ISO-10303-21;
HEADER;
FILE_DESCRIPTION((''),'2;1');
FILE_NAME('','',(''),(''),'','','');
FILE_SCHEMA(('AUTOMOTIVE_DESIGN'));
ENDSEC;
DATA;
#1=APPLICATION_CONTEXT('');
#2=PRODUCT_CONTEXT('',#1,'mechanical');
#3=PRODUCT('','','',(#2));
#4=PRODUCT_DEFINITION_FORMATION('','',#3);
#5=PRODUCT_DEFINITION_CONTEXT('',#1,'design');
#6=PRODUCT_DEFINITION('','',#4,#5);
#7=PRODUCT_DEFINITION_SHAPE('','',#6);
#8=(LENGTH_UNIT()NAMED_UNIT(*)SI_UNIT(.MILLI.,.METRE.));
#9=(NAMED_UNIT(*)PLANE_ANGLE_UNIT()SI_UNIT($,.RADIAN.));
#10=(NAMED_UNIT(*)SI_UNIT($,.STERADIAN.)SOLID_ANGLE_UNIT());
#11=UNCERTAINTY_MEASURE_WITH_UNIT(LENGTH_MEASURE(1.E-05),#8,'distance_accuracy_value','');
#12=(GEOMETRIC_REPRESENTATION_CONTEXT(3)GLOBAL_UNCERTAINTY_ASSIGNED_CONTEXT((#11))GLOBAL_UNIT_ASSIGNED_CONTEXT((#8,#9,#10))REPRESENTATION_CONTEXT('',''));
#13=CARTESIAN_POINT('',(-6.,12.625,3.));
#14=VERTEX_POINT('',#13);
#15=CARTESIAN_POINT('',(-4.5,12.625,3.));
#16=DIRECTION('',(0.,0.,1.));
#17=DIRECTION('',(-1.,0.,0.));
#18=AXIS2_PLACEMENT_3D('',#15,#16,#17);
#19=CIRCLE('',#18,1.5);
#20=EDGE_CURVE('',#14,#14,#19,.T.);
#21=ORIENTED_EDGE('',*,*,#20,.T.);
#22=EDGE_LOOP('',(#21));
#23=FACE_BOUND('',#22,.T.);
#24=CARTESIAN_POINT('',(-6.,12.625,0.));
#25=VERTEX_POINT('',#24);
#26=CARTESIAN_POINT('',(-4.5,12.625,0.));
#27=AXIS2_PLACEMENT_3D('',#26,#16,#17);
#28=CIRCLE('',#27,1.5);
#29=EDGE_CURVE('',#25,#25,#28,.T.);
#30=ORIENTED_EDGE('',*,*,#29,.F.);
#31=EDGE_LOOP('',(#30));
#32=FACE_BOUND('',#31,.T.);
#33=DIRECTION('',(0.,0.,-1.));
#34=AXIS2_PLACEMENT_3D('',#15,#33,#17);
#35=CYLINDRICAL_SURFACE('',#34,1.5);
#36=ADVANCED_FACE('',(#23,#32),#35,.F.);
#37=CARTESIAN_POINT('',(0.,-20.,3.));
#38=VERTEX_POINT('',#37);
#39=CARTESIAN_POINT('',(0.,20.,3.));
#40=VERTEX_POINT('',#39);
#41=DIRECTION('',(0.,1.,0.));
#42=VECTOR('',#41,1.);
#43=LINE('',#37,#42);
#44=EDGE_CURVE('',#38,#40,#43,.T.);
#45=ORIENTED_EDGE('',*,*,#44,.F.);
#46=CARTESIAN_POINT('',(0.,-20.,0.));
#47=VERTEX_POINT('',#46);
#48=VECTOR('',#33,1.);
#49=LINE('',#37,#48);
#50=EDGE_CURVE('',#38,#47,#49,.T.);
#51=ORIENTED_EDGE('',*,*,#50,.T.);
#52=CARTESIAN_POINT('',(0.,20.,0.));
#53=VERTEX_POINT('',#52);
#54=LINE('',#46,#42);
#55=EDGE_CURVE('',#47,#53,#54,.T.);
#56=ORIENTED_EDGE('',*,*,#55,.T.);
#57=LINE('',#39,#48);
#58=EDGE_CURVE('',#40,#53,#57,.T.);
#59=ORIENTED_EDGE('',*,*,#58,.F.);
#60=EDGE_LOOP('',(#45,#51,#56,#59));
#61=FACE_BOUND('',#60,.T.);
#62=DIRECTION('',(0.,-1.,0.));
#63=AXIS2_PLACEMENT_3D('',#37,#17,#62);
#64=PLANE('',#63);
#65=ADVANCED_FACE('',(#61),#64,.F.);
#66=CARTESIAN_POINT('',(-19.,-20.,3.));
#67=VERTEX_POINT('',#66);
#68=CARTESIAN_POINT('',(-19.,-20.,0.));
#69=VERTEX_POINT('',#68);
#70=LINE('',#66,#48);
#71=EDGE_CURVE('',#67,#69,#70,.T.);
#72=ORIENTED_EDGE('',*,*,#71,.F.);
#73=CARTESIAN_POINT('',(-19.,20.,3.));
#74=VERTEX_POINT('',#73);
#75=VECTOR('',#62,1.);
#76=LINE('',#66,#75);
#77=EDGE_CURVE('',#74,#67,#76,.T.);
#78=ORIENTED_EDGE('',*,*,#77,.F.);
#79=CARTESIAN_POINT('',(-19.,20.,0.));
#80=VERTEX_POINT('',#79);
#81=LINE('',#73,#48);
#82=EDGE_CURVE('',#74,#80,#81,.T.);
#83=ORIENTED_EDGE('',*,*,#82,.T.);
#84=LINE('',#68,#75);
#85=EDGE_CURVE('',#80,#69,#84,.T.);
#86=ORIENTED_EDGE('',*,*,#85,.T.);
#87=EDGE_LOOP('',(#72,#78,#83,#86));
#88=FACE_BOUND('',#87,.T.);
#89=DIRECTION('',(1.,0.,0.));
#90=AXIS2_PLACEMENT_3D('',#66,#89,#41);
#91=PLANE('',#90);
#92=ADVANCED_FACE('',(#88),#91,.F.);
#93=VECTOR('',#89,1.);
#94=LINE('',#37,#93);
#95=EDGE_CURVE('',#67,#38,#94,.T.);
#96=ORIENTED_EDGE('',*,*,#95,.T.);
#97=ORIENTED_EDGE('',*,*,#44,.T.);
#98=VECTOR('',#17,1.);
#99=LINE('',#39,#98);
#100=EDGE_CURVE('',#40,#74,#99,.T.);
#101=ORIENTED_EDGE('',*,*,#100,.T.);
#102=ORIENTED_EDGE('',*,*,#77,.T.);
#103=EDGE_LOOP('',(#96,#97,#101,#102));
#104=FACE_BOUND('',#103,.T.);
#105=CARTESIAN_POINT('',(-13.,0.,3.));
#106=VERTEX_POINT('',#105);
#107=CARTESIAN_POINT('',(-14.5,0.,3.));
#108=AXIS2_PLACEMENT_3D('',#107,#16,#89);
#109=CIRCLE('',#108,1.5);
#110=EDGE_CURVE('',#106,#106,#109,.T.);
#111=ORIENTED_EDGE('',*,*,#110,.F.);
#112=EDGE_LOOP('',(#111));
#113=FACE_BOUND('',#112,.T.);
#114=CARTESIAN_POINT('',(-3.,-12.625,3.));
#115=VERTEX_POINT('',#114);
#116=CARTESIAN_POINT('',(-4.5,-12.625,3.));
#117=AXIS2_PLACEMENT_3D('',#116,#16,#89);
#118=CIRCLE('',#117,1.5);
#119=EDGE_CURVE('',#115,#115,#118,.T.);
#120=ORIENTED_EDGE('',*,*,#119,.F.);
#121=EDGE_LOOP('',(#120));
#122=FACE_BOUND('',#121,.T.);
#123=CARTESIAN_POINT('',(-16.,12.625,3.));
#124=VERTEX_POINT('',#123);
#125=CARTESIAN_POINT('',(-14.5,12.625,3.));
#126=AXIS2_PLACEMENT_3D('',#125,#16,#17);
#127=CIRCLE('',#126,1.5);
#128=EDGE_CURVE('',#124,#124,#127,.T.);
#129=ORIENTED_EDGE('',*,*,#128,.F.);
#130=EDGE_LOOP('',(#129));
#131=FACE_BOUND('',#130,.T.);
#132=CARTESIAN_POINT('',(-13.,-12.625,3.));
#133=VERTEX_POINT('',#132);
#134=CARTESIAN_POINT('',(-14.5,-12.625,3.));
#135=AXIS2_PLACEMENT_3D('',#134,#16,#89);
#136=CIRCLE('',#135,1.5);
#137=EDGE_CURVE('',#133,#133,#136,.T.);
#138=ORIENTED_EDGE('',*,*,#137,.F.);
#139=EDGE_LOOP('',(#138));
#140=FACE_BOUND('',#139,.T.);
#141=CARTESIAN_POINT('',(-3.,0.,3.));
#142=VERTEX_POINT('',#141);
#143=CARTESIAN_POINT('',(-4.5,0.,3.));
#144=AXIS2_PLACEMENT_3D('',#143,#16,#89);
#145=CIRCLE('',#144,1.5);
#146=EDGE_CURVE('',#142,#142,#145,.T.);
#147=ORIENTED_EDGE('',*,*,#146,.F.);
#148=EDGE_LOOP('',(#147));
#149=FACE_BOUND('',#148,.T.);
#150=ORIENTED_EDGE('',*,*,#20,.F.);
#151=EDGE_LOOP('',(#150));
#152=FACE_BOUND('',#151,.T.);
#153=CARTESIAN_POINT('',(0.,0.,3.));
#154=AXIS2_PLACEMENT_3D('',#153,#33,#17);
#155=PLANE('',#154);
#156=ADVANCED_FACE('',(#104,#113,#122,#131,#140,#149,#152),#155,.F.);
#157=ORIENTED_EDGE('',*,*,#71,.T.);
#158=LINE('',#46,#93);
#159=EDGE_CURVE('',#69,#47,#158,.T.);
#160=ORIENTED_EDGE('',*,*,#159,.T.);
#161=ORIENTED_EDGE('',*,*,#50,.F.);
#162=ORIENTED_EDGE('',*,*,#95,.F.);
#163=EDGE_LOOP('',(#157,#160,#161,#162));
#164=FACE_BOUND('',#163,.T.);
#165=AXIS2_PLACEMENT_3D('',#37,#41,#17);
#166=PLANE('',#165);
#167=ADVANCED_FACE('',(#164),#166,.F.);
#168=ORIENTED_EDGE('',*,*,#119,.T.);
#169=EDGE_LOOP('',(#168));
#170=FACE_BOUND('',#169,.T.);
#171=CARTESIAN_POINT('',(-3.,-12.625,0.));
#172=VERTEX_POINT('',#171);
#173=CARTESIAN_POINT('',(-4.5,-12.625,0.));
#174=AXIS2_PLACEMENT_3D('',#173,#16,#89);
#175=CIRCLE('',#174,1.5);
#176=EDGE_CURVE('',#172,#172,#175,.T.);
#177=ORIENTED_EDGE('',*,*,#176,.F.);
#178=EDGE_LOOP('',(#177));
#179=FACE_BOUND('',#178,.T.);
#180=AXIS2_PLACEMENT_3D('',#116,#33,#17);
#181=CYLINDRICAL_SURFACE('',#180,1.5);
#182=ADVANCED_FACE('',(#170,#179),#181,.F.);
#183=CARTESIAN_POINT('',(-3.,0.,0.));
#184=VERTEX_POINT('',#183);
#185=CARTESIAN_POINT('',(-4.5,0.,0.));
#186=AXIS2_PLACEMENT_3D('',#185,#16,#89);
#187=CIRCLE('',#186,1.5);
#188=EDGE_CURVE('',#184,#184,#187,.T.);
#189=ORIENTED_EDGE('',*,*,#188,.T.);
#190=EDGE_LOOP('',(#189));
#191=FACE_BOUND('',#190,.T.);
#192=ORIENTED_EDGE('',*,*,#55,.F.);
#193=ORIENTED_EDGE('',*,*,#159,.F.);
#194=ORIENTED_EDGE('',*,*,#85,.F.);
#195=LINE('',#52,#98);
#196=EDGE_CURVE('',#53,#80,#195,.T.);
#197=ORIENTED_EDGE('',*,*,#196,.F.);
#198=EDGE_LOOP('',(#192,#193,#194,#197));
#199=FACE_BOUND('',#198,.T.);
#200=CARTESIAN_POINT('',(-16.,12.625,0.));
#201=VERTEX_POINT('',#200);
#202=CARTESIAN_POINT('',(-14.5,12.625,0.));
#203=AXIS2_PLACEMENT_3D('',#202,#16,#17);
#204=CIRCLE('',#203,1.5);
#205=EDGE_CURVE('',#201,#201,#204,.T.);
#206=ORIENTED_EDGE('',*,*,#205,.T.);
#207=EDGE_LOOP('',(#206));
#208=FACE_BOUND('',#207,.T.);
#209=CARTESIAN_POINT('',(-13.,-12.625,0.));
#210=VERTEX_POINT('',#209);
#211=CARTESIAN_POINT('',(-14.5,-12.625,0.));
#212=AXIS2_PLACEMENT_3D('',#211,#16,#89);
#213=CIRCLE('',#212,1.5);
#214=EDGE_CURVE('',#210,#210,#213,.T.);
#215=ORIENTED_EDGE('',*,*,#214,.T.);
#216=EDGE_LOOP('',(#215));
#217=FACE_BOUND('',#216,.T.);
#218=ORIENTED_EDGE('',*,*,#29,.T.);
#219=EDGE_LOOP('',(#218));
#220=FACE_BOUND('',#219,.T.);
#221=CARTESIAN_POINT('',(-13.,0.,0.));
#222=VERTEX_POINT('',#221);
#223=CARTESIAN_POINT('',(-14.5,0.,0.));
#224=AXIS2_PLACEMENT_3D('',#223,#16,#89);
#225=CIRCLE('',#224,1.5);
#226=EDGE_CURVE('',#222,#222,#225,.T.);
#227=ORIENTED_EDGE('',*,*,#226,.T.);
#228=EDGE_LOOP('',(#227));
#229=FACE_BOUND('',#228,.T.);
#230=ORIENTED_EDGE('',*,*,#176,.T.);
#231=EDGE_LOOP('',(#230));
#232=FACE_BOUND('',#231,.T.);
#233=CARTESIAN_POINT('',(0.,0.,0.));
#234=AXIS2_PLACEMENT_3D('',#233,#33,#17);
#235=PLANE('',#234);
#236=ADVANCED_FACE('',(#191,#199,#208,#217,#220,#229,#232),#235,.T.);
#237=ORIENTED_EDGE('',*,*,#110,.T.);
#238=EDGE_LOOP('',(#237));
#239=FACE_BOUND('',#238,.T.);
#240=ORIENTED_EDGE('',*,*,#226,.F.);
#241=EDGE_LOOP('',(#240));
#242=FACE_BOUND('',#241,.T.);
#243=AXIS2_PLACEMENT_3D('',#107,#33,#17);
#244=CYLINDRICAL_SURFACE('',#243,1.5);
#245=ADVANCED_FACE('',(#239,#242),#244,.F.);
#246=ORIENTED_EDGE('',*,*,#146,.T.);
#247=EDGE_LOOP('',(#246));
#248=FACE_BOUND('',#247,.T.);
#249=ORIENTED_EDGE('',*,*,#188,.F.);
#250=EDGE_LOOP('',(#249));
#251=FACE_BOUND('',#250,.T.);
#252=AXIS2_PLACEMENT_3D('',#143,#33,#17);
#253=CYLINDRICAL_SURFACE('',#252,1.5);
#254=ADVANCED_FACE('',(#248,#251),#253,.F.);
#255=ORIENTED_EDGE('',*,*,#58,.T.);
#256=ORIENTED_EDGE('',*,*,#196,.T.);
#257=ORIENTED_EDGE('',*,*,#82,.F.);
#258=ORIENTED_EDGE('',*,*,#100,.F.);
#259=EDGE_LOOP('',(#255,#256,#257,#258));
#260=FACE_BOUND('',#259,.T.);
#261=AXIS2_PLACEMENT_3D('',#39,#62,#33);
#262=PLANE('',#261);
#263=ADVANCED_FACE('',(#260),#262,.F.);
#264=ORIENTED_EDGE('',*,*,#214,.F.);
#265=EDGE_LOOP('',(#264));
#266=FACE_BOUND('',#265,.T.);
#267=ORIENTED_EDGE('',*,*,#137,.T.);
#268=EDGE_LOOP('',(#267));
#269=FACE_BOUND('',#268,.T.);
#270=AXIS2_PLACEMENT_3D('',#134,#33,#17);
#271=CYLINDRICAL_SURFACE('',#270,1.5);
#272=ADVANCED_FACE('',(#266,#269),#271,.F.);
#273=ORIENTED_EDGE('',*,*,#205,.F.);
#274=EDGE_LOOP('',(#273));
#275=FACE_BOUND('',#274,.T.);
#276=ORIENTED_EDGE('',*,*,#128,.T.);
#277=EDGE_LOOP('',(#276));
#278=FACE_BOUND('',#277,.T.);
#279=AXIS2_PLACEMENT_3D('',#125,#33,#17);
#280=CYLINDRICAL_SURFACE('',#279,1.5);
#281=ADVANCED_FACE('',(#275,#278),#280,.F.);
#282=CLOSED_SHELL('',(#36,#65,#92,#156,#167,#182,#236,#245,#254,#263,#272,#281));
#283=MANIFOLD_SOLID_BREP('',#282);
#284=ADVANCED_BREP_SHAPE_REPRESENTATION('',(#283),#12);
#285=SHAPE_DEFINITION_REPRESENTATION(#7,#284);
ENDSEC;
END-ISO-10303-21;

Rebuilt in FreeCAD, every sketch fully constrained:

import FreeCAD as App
import Part
import Sketcher

V = App.Vector


def add_polygon(sketch, points):
    """Adds a closed chain of lines whose ends are joined by coincident constraints."""
    first, n = sketch.GeometryCount, len(points)
    for a, b in zip(points, points[1:] + points[:1]):
        sketch.addGeometry(Part.LineSegment(App.Vector(*a, 0), App.Vector(*b, 0)), False)
    for i in range(n):
        sketch.addConstraint(Sketcher.Constraint("Coincident", first + i, 2, first + (i + 1) % n, 1))

doc = App.newDocument("Part")
params = doc.addObject("Spreadsheet::Sheet", "Params")
for row, (alias, value) in enumerate([
    ("sketch1_diameter", "3 mm"),
    ("sketch1_width", "19 mm"),
    ("sketch1_height", "40 mm"),
    ("pad1_length", "3 mm"),
], start=1):
    params.set(f"A{row}", alias)
    params.set(f"B{row}", "=" + value)
    params.setAlias(f"B{row}", alias)

body = doc.addObject("PartDesign::Body", "Body")

# Sketch on XY plane
sketch1 = doc.addObject("Sketcher::SketchObject", "Sketch")
body.addObject(sketch1)
sketch1.AttachmentSupport = (doc.XY_Plane, [""])
sketch1.MapMode = "FlatFace"
add_polygon(sketch1, [(-19, 20), (-19, -20), (0, -20), (0, 20)])  # lines 0-3
sketch1.addGeometry(Part.Circle(V(-14.5, -12.6, 0), V(0, 0, 1), 1.5), False)  # 4
sketch1.addGeometry(Part.Circle(V(-4.5, -12.6, 0), V(0, 0, 1), 1.5), False)  # 5
sketch1.addGeometry(Part.Circle(V(-14.5, 0, 0), V(0, 0, 1), 1.5), False)  # 6
sketch1.addGeometry(Part.Circle(V(-14.5, 12.6, 0), V(0, 0, 1), 1.5), False)  # 7
sketch1.addGeometry(Part.Circle(V(-4.5, 0, 0), V(0, 0, 1), 1.5), False)  # 8
sketch1.addGeometry(Part.Circle(V(-4.5, 12.6, 0), V(0, 0, 1), 1.5), False)  # 9
sketch1.addConstraint(Sketcher.Constraint("Vertical", 0))
sketch1.addConstraint(Sketcher.Constraint("Horizontal", 1))
sketch1.addConstraint(Sketcher.Constraint("Vertical", 2))
sketch1.addConstraint(Sketcher.Constraint("Horizontal", 3))
sketch1.addConstraint(Sketcher.Constraint("Equal", 4, 5))
sketch1.addConstraint(Sketcher.Constraint("Equal", 5, 6))
sketch1.addConstraint(Sketcher.Constraint("Equal", 6, 7))
sketch1.addConstraint(Sketcher.Constraint("Equal", 7, 8))
sketch1.addConstraint(Sketcher.Constraint("Equal", 8, 9))
sketch1.addConstraint(Sketcher.Constraint("Symmetric", 1, 2, 2, 2, -1, 1))
sketch1.addConstraint(Sketcher.Constraint("Symmetric", 4, 3, 7, 3, -1))
sketch1.addConstraint(Sketcher.Constraint("Symmetric", 5, 3, 9, 3, -1))
sketch1.addConstraint(Sketcher.Constraint("PointOnObject", 6, 3, -1))
sketch1.addConstraint(Sketcher.Constraint("PointOnObject", 8, 3, -1))
sketch1.addConstraint(Sketcher.Constraint("Horizontal", 4, 3, 5, 3))
sketch1.addConstraint(Sketcher.Constraint("Vertical", 4, 3, 6, 3))
sketch1.addConstraint(Sketcher.Constraint("Vertical", 5, 3, 8, 3))
sketch1.addConstraint(Sketcher.Constraint("Diameter", 4, 3.0))
sketch1.addConstraint(Sketcher.Constraint("DistanceX", 1, 1, 1, 2, 19.0))
sketch1.addConstraint(Sketcher.Constraint("DistanceY", 0, 2, 0, 1, 40.0))
sketch1.addConstraint(Sketcher.Constraint("DistanceX", 4, 3, 5, 3, 10.0))
sketch1.addConstraint(Sketcher.Constraint("DistanceX", 4, 3, -1, 1, 14.5))
sketch1.addConstraint(Sketcher.Constraint("DistanceY", 4, 3, 7, 3, 25.25))
sketch1.setExpression("Constraints[21]", "Params.sketch1_diameter")
sketch1.setExpression("Constraints[22]", "Params.sketch1_width")
sketch1.setExpression("Constraints[23]", "Params.sketch1_height")
pad1 = doc.addObject("PartDesign::Pad", "Pad")
body.addObject(pad1)
pad1.Profile = sketch1
pad1.setExpression("Length", "Params.pad1_length")

doc.recompute()
